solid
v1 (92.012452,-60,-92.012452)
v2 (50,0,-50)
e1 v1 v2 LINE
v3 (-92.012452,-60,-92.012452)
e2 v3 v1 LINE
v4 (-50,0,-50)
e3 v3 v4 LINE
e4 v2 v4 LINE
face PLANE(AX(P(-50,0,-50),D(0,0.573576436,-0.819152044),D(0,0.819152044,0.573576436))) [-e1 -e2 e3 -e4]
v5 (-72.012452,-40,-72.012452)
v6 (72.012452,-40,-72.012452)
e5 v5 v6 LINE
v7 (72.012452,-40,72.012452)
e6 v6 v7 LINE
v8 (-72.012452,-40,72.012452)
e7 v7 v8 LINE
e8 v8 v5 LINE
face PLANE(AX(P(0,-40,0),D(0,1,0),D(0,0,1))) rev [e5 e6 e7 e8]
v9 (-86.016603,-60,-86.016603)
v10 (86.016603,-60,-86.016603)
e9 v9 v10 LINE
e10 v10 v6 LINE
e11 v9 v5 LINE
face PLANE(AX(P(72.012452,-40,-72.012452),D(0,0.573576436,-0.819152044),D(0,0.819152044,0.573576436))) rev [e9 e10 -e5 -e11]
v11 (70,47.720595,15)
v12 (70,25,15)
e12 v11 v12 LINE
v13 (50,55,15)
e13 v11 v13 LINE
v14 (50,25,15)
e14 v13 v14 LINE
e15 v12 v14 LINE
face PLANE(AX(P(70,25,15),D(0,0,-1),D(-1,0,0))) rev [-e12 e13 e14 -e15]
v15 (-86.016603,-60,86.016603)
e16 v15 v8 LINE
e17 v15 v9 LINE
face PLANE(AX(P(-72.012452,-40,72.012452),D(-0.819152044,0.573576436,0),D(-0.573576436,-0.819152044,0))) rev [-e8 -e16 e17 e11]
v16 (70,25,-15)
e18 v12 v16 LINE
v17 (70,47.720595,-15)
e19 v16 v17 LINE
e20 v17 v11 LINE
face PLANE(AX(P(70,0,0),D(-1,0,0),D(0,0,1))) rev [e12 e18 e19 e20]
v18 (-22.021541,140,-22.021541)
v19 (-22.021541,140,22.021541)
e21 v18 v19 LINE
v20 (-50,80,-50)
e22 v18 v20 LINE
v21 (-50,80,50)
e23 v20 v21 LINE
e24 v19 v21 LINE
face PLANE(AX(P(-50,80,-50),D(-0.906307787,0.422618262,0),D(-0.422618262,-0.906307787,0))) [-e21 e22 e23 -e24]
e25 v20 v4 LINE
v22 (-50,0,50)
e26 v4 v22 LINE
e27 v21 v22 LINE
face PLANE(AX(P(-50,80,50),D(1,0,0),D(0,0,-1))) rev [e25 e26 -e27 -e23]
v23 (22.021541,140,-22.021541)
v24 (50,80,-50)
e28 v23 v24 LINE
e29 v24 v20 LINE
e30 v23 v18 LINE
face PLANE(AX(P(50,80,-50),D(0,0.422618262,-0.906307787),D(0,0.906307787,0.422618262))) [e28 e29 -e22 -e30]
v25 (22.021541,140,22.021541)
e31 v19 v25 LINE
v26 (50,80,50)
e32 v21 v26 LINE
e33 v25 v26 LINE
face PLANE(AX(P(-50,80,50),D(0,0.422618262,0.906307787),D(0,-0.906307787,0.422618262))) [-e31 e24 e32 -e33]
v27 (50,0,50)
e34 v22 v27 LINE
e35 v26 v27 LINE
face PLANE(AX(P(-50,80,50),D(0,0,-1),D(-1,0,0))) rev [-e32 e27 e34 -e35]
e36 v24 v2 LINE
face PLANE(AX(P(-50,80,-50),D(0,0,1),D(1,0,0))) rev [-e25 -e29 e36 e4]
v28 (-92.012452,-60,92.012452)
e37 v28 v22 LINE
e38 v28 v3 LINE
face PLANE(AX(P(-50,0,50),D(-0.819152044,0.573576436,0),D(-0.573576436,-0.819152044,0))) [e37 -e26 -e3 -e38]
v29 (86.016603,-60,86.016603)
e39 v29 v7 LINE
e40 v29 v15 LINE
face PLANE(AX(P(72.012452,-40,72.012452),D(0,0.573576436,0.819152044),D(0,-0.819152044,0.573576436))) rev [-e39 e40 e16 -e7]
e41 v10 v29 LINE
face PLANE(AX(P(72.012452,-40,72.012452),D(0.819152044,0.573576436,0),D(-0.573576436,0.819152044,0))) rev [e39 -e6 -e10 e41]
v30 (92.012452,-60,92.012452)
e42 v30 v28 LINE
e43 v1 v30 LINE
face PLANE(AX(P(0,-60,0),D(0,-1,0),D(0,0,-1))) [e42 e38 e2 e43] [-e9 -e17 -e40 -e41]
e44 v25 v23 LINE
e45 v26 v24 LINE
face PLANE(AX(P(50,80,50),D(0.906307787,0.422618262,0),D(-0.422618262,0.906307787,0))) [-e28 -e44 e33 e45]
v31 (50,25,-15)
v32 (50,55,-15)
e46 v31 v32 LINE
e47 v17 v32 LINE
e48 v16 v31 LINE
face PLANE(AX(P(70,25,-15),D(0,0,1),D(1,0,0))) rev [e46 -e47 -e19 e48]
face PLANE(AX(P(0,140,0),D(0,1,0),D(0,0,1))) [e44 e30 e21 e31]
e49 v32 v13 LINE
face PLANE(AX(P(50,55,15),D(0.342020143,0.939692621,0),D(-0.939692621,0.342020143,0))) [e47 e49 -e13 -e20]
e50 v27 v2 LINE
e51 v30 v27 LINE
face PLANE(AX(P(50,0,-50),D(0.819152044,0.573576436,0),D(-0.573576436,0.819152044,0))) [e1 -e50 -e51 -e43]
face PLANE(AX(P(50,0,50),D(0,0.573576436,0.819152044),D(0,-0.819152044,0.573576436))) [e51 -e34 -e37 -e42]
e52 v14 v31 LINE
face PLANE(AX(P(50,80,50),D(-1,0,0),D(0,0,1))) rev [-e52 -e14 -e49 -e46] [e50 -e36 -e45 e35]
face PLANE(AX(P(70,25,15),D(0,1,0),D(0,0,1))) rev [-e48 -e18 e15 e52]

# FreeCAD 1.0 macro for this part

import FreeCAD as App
import Part
import Sketcher

V = App.Vector


def faces_at(feature, points):
    """Names of the faces that lie closest to the given points."""
    faces = feature.Shape.Faces
    near = lambda p: min(range(len(faces)), key=lambda i: faces[i].distToShape(Part.Vertex(*p))[0])
    return sorted({f"Face{near(p) + 1}" for p in points})

doc = App.newDocument("Part")
body = doc.addObject("PartDesign::Body", "Body")

# Sketch on XZ plane
sketch1 = body.newObject("Sketcher::SketchObject", "Sketch")
sketch1.AttachmentSupport = (doc.getObject("XZ_Plane"), [""])
sketch1.MapMode = "FlatFace"
sketch1.addGeometry(Part.LineSegment(V(-50, -50, 0), V(-50, 50, 0)), False)
sketch1.addGeometry(Part.LineSegment(V(-50, 50, 0), V(50, 50, 0)), False)
sketch1.addGeometry(Part.LineSegment(V(50, 50, 0), V(50, -50, 0)), False)
sketch1.addGeometry(Part.LineSegment(V(50, -50, 0), V(-50, -50, 0)), False)
sketch1.addConstraint(Sketcher.Constraint("Coincident", 0, 2, 1, 1))
sketch1.addConstraint(Sketcher.Constraint("Coincident", 1, 2, 2, 1))
sketch1.addConstraint(Sketcher.Constraint("Coincident", 2, 2, 3, 1))
sketch1.addConstraint(Sketcher.Constraint("Coincident", 3, 2, 0, 1))
sketch1.addConstraint(Sketcher.Constraint("Vertical", 0))
sketch1.addConstraint(Sketcher.Constraint("Horizontal", 1))
sketch1.addConstraint(Sketcher.Constraint("Vertical", 2))
sketch1.addConstraint(Sketcher.Constraint("Horizontal", 3))
sketch1.addConstraint(Sketcher.Constraint("Symmetric", 0, 2, 2, 2, -1, 1))
sketch1.addConstraint(Sketcher.Constraint("Equal", 3, 0))
sketch1.addConstraint(Sketcher.Constraint("DistanceX", 1, 1, 1, 2, 100.0))
pad1 = body.newObject("PartDesign::Pad", "Pad")
pad1.Profile = sketch1
pad1.Length = 80
pad1.Reversed = True

# Sketch on XZ plane
sketch2 = body.newObject("Sketcher::SketchObject", "Sketch001")
sketch2.AttachmentSupport = (doc.getObject("XZ_Plane"), [""])
sketch2.MapMode = "FlatFace"
sketch2.AttachmentOffset = App.Placement(V(0, 0, -80), App.Rotation())
sketch2.addGeometry(Part.LineSegment(V(-50, -50, 0), V(-50, 50, 0)), False)
sketch2.addGeometry(Part.LineSegment(V(-50, 50, 0), V(50, 50, 0)), False)
sketch2.addGeometry(Part.LineSegment(V(50, 50, 0), V(50, -50, 0)), False)
sketch2.addGeometry(Part.LineSegment(V(50, -50, 0), V(-50, -50, 0)), False)
sketch2.addConstraint(Sketcher.Constraint("Coincident", 0, 2, 1, 1))
sketch2.addConstraint(Sketcher.Constraint("Coincident", 1, 2, 2, 1))
sketch2.addConstraint(Sketcher.Constraint("Coincident", 2, 2, 3, 1))
sketch2.addConstraint(Sketcher.Constraint("Coincident", 3, 2, 0, 1))
sketch2.addConstraint(Sketcher.Constraint("Vertical", 0))
sketch2.addConstraint(Sketcher.Constraint("Horizontal", 1))
sketch2.addConstraint(Sketcher.Constraint("Vertical", 2))
sketch2.addConstraint(Sketcher.Constraint("Horizontal", 3))
sketch2.addConstraint(Sketcher.Constraint("Symmetric", 0, 2, 2, 2, -1, 1))
sketch2.addConstraint(Sketcher.Constraint("Equal", 3, 0))
sketch2.addConstraint(Sketcher.Constraint("DistanceX", 1, 1, 1, 2, 100.0))
pad2 = body.newObject("PartDesign::Pad", "Pad001")
pad2.Profile = sketch2
pad2.Length = 60
pad2.Reversed = True
pad2.TaperAngle = -25

# Sketch on XZ plane
sketch3 = body.newObject("Sketcher::SketchObject", "Sketch002")
sketch3.AttachmentSupport = (doc.getObject("XZ_Plane"), [""])
sketch3.MapMode = "FlatFace"
sketch3.addGeometry(Part.LineSegment(V(-50, 50, 0), V(-50, -50, 0)), False)
sketch3.addGeometry(Part.LineSegment(V(-50, -50, 0), V(50, -50, 0)), False)
sketch3.addGeometry(Part.LineSegment(V(50, -50, 0), V(50, 50, 0)), False)
sketch3.addGeometry(Part.LineSegment(V(50, 50, 0), V(-50, 50, 0)), False)
sketch3.addConstraint(Sketcher.Constraint("Coincident", 0, 2, 1, 1))
sketch3.addConstraint(Sketcher.Constraint("Coincident", 1, 2, 2, 1))
sketch3.addConstraint(Sketcher.Constraint("Coincident", 2, 2, 3, 1))
sketch3.addConstraint(Sketcher.Constraint("Coincident", 3, 2, 0, 1))
sketch3.addConstraint(Sketcher.Constraint("Vertical", 0))
sketch3.addConstraint(Sketcher.Constraint("Horizontal", 1))
sketch3.addConstraint(Sketcher.Constraint("Vertical", 2))
sketch3.addConstraint(Sketcher.Constraint("Horizontal", 3))
sketch3.addConstraint(Sketcher.Constraint("Symmetric", 0, 2, 2, 2, -1, 1))
sketch3.addConstraint(Sketcher.Constraint("Equal", 3, 0))
sketch3.addConstraint(Sketcher.Constraint("DistanceX", 1, 1, 1, 2, 100.0))
pad3 = body.newObject("PartDesign::Pad", "Pad002")
pad3.Profile = sketch3
pad3.Length = 60
pad3.TaperAngle = 35

# Sketch on XZ plane
sketch4 = body.newObject("Sketcher::SketchObject", "Sketch003")
sketch4.AttachmentSupport = (doc.getObject("XZ_Plane"), [""])
sketch4.MapMode = "FlatFace"
sketch4.AttachmentOffset = App.Placement(V(0, 0, 40), App.Rotation())
sketch4.addGeometry(Part.LineSegment(V(72, -72, 0), V(72, 72, 0)), False)
sketch4.addGeometry(Part.LineSegment(V(72, 72, 0), V(-72, 72, 0)), False)
sketch4.addGeometry(Part.LineSegment(V(-72, 72, 0), V(-72, -72, 0)), False)
sketch4.addGeometry(Part.LineSegment(V(-72, -72, 0), V(72, -72, 0)), False)
sketch4.addConstraint(Sketcher.Constraint("Coincident", 0, 2, 1, 1))
sketch4.addConstraint(Sketcher.Constraint("Coincident", 1, 2, 2, 1))
sketch4.addConstraint(Sketcher.Constraint("Coincident", 2, 2, 3, 1))
sketch4.addConstraint(Sketcher.Constraint("Coincident", 3, 2, 0, 1))
sketch4.addConstraint(Sketcher.Constraint("Vertical", 0))
sketch4.addConstraint(Sketcher.Constraint("Horizontal", 1))
sketch4.addConstraint(Sketcher.Constraint("Vertical", 2))
sketch4.addConstraint(Sketcher.Constraint("Horizontal", 3))
sketch4.addConstraint(Sketcher.Constraint("Symmetric", 0, 2, 2, 2, -1, 1))
sketch4.addConstraint(Sketcher.Constraint("Equal", 3, 0))
sketch4.addConstraint(Sketcher.Constraint("DistanceX", 1, 2, 1, 1, 144.024905))
pocket1 = body.newObject("PartDesign::Pocket", "Pocket")
pocket1.Profile = sketch4
pocket1.Length = 20
pocket1.Reversed = True
pocket1.TaperAngle = 35

# Sketch on YZ plane
sketch5 = body.newObject("Sketcher::SketchObject", "Sketch004")
sketch5.AttachmentSupport = (doc.getObject("YZ_Plane"), [""])
sketch5.MapMode = "FlatFace"
sketch5.AttachmentOffset = App.Placement(V(0, 0, 50), App.Rotation())
sketch5.addGeometry(Part.LineSegment(V(55, 15, 0), V(25, 15, 0)), False)
sketch5.addGeometry(Part.LineSegment(V(25, 15, 0), V(25, -15, 0)), False)
sketch5.addGeometry(Part.LineSegment(V(25, -15, 0), V(55, -15, 0)), False)
sketch5.addGeometry(Part.LineSegment(V(55, -15, 0), V(55, 15, 0)), False)
sketch5.addConstraint(Sketcher.Constraint("Coincident", 0, 2, 1, 1))
sketch5.addConstraint(Sketcher.Constraint("Coincident", 1, 2, 2, 1))
sketch5.addConstraint(Sketcher.Constraint("Coincident", 2, 2, 3, 1))
sketch5.addConstraint(Sketcher.Constraint("Coincident", 3, 2, 0, 1))
sketch5.addConstraint(Sketcher.Constraint("Horizontal", 0))
sketch5.addConstraint(Sketcher.Constraint("Vertical", 1))
sketch5.addConstraint(Sketcher.Constraint("Horizontal", 2))
sketch5.addConstraint(Sketcher.Constraint("Vertical", 3))
sketch5.addConstraint(Sketcher.Constraint("Equal", 2, 1))
sketch5.addConstraint(Sketcher.Constraint("DistanceX", 0, 2, 0, 1, 30.0))
sketch5.addConstraint(Sketcher.Constraint("DistanceX", -1, 1, 0, 2, 25.0))
sketch5.addConstraint(Sketcher.Constraint("DistanceY", -1, 1, 0, 2, 15.0))
pad4 = body.newObject("PartDesign::Pad", "Pad003")
pad4.Profile = sketch5
pad4.Length = 20
doc.recompute()

datumplane = body.newObject("PartDesign::Plane", "DatumPlane")
datumplane.AttachmentSupport = (doc.getObject("YZ_Plane"), [""])
datumplane.MapMode = "FlatFace"
datumplane.AttachmentOffset = App.Placement(V(0, 0, 50), App.Rotation())
draft = body.newObject("PartDesign::Draft", "Draft")
draft.Base = (pad4, faces_at(pad4, [(60, 55, 0)]))
draft.NeutralPlane = (datumplane, [""])
draft.Angle = 20
draft.Reversed = False

doc.recompute()
